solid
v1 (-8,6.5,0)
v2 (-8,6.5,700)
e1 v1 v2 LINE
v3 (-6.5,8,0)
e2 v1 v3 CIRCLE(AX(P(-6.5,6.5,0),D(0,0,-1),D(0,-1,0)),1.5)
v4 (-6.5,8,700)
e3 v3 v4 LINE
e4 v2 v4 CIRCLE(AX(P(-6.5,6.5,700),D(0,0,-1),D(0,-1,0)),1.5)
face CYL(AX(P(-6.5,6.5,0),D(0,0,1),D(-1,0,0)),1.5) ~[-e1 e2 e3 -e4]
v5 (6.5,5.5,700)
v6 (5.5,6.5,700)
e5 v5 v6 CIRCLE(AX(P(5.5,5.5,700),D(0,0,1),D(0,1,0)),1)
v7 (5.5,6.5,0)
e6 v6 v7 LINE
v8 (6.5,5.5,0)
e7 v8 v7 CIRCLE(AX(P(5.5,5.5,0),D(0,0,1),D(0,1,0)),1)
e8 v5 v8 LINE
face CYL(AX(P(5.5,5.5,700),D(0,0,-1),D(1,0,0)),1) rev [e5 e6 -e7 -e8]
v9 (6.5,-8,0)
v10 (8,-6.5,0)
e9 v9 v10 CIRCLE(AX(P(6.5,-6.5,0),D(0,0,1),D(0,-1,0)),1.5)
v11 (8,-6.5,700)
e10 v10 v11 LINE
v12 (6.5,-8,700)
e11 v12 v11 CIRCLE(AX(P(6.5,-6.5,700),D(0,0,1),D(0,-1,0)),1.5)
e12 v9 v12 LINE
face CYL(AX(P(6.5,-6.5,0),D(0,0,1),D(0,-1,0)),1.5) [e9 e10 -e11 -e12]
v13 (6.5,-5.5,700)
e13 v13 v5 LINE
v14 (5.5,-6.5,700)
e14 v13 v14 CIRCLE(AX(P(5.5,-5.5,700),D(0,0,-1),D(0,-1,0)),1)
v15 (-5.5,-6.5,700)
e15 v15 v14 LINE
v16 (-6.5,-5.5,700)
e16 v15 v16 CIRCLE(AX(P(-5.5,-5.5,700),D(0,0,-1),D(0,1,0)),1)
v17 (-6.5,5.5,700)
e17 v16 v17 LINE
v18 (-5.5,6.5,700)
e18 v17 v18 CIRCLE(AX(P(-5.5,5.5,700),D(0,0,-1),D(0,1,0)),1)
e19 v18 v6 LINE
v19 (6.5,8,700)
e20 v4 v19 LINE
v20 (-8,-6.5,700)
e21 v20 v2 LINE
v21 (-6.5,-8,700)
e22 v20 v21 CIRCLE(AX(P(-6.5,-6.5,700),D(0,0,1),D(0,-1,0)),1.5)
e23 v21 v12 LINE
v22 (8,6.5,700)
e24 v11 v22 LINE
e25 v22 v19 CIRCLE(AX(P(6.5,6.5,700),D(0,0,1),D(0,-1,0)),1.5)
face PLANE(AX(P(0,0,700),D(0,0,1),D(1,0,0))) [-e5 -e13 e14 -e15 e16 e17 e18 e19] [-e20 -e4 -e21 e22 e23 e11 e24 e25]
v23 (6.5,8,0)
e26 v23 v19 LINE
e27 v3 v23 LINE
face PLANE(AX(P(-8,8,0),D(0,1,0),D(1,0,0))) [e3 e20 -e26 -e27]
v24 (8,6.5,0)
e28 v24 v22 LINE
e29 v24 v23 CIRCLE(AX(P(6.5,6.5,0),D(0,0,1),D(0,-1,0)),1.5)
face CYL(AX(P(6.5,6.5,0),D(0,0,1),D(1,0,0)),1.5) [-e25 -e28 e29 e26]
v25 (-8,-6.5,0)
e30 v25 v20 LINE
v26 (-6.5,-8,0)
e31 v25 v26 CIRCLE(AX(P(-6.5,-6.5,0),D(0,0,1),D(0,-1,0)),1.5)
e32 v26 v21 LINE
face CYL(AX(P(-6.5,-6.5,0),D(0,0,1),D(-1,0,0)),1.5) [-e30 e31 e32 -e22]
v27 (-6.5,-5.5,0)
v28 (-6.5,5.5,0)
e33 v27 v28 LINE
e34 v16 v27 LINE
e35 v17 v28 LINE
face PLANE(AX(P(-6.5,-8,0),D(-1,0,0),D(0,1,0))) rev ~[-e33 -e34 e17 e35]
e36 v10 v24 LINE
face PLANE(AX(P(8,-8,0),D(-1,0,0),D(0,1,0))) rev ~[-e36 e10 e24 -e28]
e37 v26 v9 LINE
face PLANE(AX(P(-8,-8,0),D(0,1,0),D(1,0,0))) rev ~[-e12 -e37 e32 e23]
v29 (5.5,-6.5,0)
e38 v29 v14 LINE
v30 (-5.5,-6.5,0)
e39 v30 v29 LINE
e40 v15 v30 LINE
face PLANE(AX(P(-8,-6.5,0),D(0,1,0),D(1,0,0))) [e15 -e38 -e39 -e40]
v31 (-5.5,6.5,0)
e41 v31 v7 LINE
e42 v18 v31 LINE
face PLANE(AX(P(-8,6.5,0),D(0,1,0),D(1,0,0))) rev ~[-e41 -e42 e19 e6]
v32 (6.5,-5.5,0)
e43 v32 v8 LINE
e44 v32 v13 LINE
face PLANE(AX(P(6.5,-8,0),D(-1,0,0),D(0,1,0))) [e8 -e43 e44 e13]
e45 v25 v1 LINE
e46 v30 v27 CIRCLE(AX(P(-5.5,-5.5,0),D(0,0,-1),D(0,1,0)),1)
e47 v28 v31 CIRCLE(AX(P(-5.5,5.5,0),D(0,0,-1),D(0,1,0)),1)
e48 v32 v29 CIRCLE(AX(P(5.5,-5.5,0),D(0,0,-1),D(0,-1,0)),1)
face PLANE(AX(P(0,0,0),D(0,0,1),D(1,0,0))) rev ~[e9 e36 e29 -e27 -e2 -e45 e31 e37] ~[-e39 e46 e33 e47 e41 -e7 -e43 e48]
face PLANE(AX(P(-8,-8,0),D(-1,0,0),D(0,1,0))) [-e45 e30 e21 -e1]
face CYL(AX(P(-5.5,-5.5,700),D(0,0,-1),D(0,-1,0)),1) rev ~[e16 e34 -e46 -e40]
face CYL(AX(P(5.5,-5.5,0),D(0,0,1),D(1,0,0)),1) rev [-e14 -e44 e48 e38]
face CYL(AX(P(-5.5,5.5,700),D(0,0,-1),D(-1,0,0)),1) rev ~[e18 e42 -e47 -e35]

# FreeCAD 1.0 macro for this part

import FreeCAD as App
import Part
import Sketcher


def edges_at(feature, points):
    """Names of the edges that pass closest to the given points."""
    edges = feature.Shape.Edges
    near = lambda p: min(range(len(edges)), key=lambda i: edges[i].distToShape(Part.Vertex(*p))[0])
    return sorted({f"Edge{near(p) + 1}" for p in points})


def faces_at(feature, points):
    """Names of the faces that lie closest to the given points."""
    faces = feature.Shape.Faces
    near = lambda p: min(range(len(faces)), key=lambda i: faces[i].distToShape(Part.Vertex(*p))[0])
    return sorted({f"Face{near(p) + 1}" for p in points})


def add_polygon(sketch, points):
    """Adds a closed chain of lines whose ends are joined by coincident constraints."""
    first, n = sketch.GeometryCount, len(points)
    for a, b in zip(points, points[1:] + points[:1]):
        sketch.addGeometry(Part.LineSegment(App.Vector(*a, 0), App.Vector(*b, 0)), False)
    for i in range(n):
        sketch.addConstraint(Sketcher.Constraint("Coincident", first + i, 2, first + (i + 1) % n, 1))

doc = App.newDocument("Part")
body = doc.addObject("PartDesign::Body", "Body")

# Sketch on XY plane
sketch1 = doc.addObject("Sketcher::SketchObject", "Sketch")
body.addObject(sketch1)
sketch1.AttachmentSupport = (doc.XY_Plane, [""])
sketch1.MapMode = "FlatFace"
add_polygon(sketch1, [(-8, 8), (-8, -8), (8, -8), (8, 8)])  # lines 0-3
sketch1.addConstraint(Sketcher.Constraint("Vertical", 0))
sketch1.addConstraint(Sketcher.Constraint("Horizontal", 1))
sketch1.addConstraint(Sketcher.Constraint("Vertical", 2))
sketch1.addConstraint(Sketcher.Constraint("Horizontal", 3))
sketch1.addConstraint(Sketcher.Constraint("Symmetric", 0, 2, 2, 2, -1, 1))
sketch1.addConstraint(Sketcher.Constraint("Equal", 3, 0))
sketch1.addConstraint(Sketcher.Constraint("DistanceX", 1, 1, 1, 2, 16.0))
pad1 = doc.addObject("PartDesign::Pad", "Pad")
body.addObject(pad1)
pad1.Profile = sketch1
pad1.Length = 700
doc.recompute()

thickness = doc.addObject("PartDesign::Thickness", "Thickness")
body.addObject(thickness)
thickness.Base = (pad1, faces_at(pad1, [(0, 0, 700), (0, 0, 0)]))
thickness.Value = 1.5
thickness.Reversed = True
thickness.Join = "Arc"
doc.recompute()

fillet = doc.addObject("PartDesign::Fillet", "Fillet")
body.addObject(fillet)
fillet.Base = (thickness, edges_at(thickness, [
    (-8, 8, 350),
    (8, 8, 350),
    (8, -8, 350),
    (-8, -8, 350),
]))
fillet.Radius = 1.5
doc.recompute()

fillet2 = doc.addObject("PartDesign::Fillet", "Fillet001")
body.addObject(fillet2)
fillet2.Base = (fillet, edges_at(fillet, [
    (6.5, 6.5, 350),
    (-6.5, 6.5, 350),
    (-6.5, -6.5, 350),
    (6.5, -6.5, 350),
]))
fillet2.Radius = 1

doc.recompute()
